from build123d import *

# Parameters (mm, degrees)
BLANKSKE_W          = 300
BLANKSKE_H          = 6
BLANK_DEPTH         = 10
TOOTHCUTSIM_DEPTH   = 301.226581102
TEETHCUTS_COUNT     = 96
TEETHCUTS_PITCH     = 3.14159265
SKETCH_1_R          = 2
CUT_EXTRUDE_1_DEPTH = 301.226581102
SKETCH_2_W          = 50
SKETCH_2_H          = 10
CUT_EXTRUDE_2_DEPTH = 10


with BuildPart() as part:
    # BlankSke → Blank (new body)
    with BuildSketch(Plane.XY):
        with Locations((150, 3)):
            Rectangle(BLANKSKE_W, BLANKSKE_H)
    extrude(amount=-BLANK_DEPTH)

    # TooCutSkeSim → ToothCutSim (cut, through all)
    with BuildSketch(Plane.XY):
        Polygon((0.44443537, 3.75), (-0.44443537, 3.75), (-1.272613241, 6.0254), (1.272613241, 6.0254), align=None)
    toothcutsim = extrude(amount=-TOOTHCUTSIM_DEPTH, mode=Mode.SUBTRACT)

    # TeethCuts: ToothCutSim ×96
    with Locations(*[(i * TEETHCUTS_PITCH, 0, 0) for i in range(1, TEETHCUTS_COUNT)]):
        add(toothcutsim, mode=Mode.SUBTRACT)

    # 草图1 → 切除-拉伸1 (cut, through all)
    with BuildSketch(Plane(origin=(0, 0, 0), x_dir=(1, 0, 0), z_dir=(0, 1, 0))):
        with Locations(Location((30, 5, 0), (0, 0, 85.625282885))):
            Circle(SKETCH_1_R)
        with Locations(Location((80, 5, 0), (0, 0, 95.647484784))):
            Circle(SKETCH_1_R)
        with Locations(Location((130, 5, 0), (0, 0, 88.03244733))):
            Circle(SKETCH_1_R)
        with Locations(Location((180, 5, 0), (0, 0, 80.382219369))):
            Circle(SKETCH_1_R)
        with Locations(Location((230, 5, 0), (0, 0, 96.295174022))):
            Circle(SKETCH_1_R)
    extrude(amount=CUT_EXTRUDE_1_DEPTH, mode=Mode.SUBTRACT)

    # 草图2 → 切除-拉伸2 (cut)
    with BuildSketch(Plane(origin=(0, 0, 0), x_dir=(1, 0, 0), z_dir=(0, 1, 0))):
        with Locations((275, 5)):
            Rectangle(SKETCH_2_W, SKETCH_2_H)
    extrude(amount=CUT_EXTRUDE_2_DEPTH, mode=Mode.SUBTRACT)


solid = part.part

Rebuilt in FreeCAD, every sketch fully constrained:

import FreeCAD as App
import Part
import Sketcher

V = App.Vector
Q = App.Units.Quantity

doc = App.newDocument("Part")
params = doc.addObject("Spreadsheet::Sheet", "Params")
for row, (alias, value) in enumerate([
    ("sketch1_width", "300 mm"),
    ("sketch1_height", "6 mm"),
    ("pad1_length", "10 mm"),
    ("linearpattern_pitch", "3.141593 mm"),
    ("sketch3_diameter", "4 mm"),
    ("sketch4_width", "50 mm"),
    ("sketch4_height", "10 mm"),
    ("pocket3_length", "10 mm"),
], start=1):
    params.set(f"A{row}", alias)
    params.set(f"B{row}", "=" + value)
    params.setAlias(f"B{row}", alias)

body = doc.addObject("PartDesign::Body", "Body")

sketch1 = body.newObject("Sketcher::SketchObject", "Sketch")
sketch1.AttachmentSupport = (doc.getObject("XY_Plane"), [""])
sketch1.MapMode = "FlatFace"
sketch1.addGeometry(Part.LineSegment(V(0, 6, 0), V(0, 0, 0)), False)
sketch1.addGeometry(Part.LineSegment(V(0, 0, 0), V(300, 0, 0)), False)
sketch1.addGeometry(Part.LineSegment(V(300, 0, 0), V(300, 6, 0)), False)
sketch1.addGeometry(Part.LineSegment(V(300, 6, 0), V(0, 6, 0)), False)
sketch1.addConstraint(Sketcher.Constraint("Coincident", 0, 2, 1, 1))
sketch1.addConstraint(Sketcher.Constraint("Coincident", 1, 2, 2, 1))
sketch1.addConstraint(Sketcher.Constraint("Coincident", 2, 2, 3, 1))
sketch1.addConstraint(Sketcher.Constraint("Coincident", 3, 2, 0, 1))
sketch1.addConstraint(Sketcher.Constraint("Vertical", 0))
sketch1.addConstraint(Sketcher.Constraint("Horizontal", 1))
sketch1.addConstraint(Sketcher.Constraint("Vertical", 2))
sketch1.addConstraint(Sketcher.Constraint("Horizontal", 3))
sketch1.addConstraint(Sketcher.Constraint("Coincident", 0, 2, -1, 1))
sketch1.addConstraint(Sketcher.Constraint("DistanceX", 1, 1, 1, 2, 300.0))
sketch1.addConstraint(Sketcher.Constraint("DistanceY", 0, 2, 0, 1, 6.0))
sketch1.setExpression("Constraints[9]", "Params.sketch1_width")
sketch1.setExpression("Constraints[10]", "Params.sketch1_height")
pad1 = body.newObject("PartDesign::Pad", "Pad")
pad1.Profile = sketch1
pad1.setExpression("Length", "Params.pad1_length")
pad1.Reversed = True

sketch2 = body.newObject("Sketcher::SketchObject", "Sketch001")
sketch2.AttachmentSupport = (doc.getObject("XY_Plane"), [""])
sketch2.MapMode = "FlatFace"
sketch2.addGeometry(Part.LineSegment(V(-0.444435, 3.75, 0), V(0.444435, 3.75, 0)), False)
sketch2.addGeometry(Part.LineSegment(V(0.444435, 3.75, 0), V(1.272613, 6.0254, 0)), False)
sketch2.addGeometry(Part.LineSegment(V(1.272613, 6.0254, 0), V(-1.272613, 6.0254, 0)), False)
sketch2.addGeometry(Part.LineSegment(V(-1.272613, 6.0254, 0), V(-0.444435, 3.75, 0)), False)
sketch2.addConstraint(Sketcher.Constraint("Coincident", 0, 2, 1, 1))
sketch2.addConstraint(Sketcher.Constraint("Coincident", 1, 2, 2, 1))
sketch2.addConstraint(Sketcher.Constraint("Coincident", 2, 2, 3, 1))
sketch2.addConstraint(Sketcher.Constraint("Coincident", 3, 2, 0, 1))
sketch2.addConstraint(Sketcher.Constraint("Horizontal", 0))
sketch2.addConstraint(Sketcher.Constraint("Horizontal", 2))
sketch2.addConstraint(Sketcher.Constraint("Equal", 1, 3))
sketch2.addConstraint(Sketcher.Constraint("Angle", 1, Q("70 deg")))
sketch2.addConstraint(Sketcher.Constraint("DistanceY", -1, 1, 0, 2, 3.75))
sketch2.addConstraint(Sketcher.Constraint("DistanceX", 0, 1, 0, 2, 0.888871))
sketch2.addConstraint(Sketcher.Constraint("DistanceY", -1, 1, 1, 2, 6.0254))
sketch2.addConstraint(Sketcher.Constraint("DistanceX", -1, 1, 0, 2, 0.444435))
pocket1 = body.newObject("PartDesign::Pocket", "Pocket")
pocket1.Profile = sketch2
pocket1.Type = "ThroughAll"
doc.recompute()

linearpattern = body.newObject("PartDesign::LinearPattern", "LinearPattern")
linearpattern.Originals = [pocket1]
linearpattern.Direction = (doc.getObject("X_Axis"), [""])
linearpattern.Mode = "offset"
linearpattern.setExpression("Offset", "Params.linearpattern_pitch")
linearpattern.Occurrences = 96
body.Tip = linearpattern

sketch3 = body.newObject("Sketcher::SketchObject", "Sketch002")
sketch3.AttachmentSupport = (doc.getObject("XZ_Plane"), [""])
sketch3.MapMode = "FlatFace"
sketch3.addGeometry(Part.Circle(V(30, -5, 0), V(0, 0, 1), 2), False)
sketch3.addGeometry(Part.Circle(V(80, -5, 0), V(0, 0, 1), 2), False)
sketch3.addGeometry(Part.Circle(V(130, -5, 0), V(0, 0, 1), 2), False)
sketch3.addGeometry(Part.Circle(V(180, -5, 0), V(0, 0, 1), 2), False)
sketch3.addGeometry(Part.Circle(V(230, -5, 0), V(0, 0, 1), 2), False)
sketch3.addConstraint(Sketcher.Constraint("Equal", 0, 1))
sketch3.addConstraint(Sketcher.Constraint("Equal", 1, 2))
sketch3.addConstraint(Sketcher.Constraint("Equal", 2, 3))
sketch3.addConstraint(Sketcher.Constraint("Equal", 3, 4))
sketch3.addConstraint(Sketcher.Constraint("Horizontal", 0, 3, 1, 3))
sketch3.addConstraint(Sketcher.Constraint("Horizontal", 1, 3, 2, 3))
sketch3.addConstraint(Sketcher.Constraint("Horizontal", 2, 3, 3, 3))
sketch3.addConstraint(Sketcher.Constraint("Horizontal", 3, 3, 4, 3))
sketch3.addConstraint(Sketcher.Constraint("Diameter", 0, 4.0))
sketch3.addConstraint(Sketcher.Constraint("DistanceX", -1, 1, 0, 3, 30.0))
sketch3.addConstraint(Sketcher.Constraint("DistanceY", 0, 3, -1, 1, 5.0))
sketch3.addConstraint(Sketcher.Constraint("DistanceX", -1, 1, 1, 3, 80.0))
sketch3.addConstraint(Sketcher.Constraint("DistanceX", -1, 1, 2, 3, 130.0))
sketch3.addConstraint(Sketcher.Constraint("DistanceX", -1, 1, 3, 3, 180.0))
sketch3.addConstraint(Sketcher.Constraint("DistanceX", -1, 1, 4, 3, 230.0))
sketch3.setExpression("Constraints[8]", "Params.sketch3_diameter")
pocket2 = body.newObject("PartDesign::Pocket", "Pocket001")
pocket2.Profile = sketch3
pocket2.Type = "ThroughAll"

sketch4 = body.newObject("Sketcher::SketchObject", "Sketch003")
sketch4.AttachmentSupport = (doc.getObject("XZ_Plane"), [""])
sketch4.MapMode = "FlatFace"
sketch4.addGeometry(Part.LineSegment(V(250, -10, 0), V(250, 0, 0)), False)
sketch4.addGeometry(Part.LineSegment(V(250, 0, 0), V(300, 0, 0)), False)
sketch4.addGeometry(Part.LineSegment(V(300, 0, 0), V(300, -10, 0)), False)
sketch4.addGeometry(Part.LineSegment(V(300, -10, 0), V(250, -10, 0)), False)
sketch4.addConstraint(Sketcher.Constraint("Coincident", 0, 2, 1, 1))
sketch4.addConstraint(Sketcher.Constraint("Coincident", 1, 2, 2, 1))
sketch4.addConstraint(Sketcher.Constraint("Coincident", 2, 2, 3, 1))
sketch4.addConstraint(Sketcher.Constraint("Coincident", 3, 2, 0, 1))
sketch4.addConstraint(Sketcher.Constraint("Vertical", 0))
sketch4.addConstraint(Sketcher.Constraint("Horizontal", 1))
sketch4.addConstraint(Sketcher.Constraint("Vertical", 2))
sketch4.addConstraint(Sketcher.Constraint("Horizontal", 3))
sketch4.addConstraint(Sketcher.Constraint("PointOnObject", 0, 2, -1))
sketch4.addConstraint(Sketcher.Constraint("DistanceX", 1, 1, 1, 2, 50.0))
sketch4.addConstraint(Sketcher.Constraint("DistanceY", 0, 1, 0, 2, 10.0))
sketch4.addConstraint(Sketcher.Constraint("DistanceX", -1, 1, 0, 2, 250.0))
sketch4.setExpression("Constraints[9]", "Params.sketch4_width")
sketch4.setExpression("Constraints[10]", "Params.sketch4_height")
pocket3 = body.newObject("PartDesign::Pocket", "Pocket002")
pocket3.Profile = sketch4
pocket3.setExpression("Length", "Params.pocket3_length")

doc.recompute()
